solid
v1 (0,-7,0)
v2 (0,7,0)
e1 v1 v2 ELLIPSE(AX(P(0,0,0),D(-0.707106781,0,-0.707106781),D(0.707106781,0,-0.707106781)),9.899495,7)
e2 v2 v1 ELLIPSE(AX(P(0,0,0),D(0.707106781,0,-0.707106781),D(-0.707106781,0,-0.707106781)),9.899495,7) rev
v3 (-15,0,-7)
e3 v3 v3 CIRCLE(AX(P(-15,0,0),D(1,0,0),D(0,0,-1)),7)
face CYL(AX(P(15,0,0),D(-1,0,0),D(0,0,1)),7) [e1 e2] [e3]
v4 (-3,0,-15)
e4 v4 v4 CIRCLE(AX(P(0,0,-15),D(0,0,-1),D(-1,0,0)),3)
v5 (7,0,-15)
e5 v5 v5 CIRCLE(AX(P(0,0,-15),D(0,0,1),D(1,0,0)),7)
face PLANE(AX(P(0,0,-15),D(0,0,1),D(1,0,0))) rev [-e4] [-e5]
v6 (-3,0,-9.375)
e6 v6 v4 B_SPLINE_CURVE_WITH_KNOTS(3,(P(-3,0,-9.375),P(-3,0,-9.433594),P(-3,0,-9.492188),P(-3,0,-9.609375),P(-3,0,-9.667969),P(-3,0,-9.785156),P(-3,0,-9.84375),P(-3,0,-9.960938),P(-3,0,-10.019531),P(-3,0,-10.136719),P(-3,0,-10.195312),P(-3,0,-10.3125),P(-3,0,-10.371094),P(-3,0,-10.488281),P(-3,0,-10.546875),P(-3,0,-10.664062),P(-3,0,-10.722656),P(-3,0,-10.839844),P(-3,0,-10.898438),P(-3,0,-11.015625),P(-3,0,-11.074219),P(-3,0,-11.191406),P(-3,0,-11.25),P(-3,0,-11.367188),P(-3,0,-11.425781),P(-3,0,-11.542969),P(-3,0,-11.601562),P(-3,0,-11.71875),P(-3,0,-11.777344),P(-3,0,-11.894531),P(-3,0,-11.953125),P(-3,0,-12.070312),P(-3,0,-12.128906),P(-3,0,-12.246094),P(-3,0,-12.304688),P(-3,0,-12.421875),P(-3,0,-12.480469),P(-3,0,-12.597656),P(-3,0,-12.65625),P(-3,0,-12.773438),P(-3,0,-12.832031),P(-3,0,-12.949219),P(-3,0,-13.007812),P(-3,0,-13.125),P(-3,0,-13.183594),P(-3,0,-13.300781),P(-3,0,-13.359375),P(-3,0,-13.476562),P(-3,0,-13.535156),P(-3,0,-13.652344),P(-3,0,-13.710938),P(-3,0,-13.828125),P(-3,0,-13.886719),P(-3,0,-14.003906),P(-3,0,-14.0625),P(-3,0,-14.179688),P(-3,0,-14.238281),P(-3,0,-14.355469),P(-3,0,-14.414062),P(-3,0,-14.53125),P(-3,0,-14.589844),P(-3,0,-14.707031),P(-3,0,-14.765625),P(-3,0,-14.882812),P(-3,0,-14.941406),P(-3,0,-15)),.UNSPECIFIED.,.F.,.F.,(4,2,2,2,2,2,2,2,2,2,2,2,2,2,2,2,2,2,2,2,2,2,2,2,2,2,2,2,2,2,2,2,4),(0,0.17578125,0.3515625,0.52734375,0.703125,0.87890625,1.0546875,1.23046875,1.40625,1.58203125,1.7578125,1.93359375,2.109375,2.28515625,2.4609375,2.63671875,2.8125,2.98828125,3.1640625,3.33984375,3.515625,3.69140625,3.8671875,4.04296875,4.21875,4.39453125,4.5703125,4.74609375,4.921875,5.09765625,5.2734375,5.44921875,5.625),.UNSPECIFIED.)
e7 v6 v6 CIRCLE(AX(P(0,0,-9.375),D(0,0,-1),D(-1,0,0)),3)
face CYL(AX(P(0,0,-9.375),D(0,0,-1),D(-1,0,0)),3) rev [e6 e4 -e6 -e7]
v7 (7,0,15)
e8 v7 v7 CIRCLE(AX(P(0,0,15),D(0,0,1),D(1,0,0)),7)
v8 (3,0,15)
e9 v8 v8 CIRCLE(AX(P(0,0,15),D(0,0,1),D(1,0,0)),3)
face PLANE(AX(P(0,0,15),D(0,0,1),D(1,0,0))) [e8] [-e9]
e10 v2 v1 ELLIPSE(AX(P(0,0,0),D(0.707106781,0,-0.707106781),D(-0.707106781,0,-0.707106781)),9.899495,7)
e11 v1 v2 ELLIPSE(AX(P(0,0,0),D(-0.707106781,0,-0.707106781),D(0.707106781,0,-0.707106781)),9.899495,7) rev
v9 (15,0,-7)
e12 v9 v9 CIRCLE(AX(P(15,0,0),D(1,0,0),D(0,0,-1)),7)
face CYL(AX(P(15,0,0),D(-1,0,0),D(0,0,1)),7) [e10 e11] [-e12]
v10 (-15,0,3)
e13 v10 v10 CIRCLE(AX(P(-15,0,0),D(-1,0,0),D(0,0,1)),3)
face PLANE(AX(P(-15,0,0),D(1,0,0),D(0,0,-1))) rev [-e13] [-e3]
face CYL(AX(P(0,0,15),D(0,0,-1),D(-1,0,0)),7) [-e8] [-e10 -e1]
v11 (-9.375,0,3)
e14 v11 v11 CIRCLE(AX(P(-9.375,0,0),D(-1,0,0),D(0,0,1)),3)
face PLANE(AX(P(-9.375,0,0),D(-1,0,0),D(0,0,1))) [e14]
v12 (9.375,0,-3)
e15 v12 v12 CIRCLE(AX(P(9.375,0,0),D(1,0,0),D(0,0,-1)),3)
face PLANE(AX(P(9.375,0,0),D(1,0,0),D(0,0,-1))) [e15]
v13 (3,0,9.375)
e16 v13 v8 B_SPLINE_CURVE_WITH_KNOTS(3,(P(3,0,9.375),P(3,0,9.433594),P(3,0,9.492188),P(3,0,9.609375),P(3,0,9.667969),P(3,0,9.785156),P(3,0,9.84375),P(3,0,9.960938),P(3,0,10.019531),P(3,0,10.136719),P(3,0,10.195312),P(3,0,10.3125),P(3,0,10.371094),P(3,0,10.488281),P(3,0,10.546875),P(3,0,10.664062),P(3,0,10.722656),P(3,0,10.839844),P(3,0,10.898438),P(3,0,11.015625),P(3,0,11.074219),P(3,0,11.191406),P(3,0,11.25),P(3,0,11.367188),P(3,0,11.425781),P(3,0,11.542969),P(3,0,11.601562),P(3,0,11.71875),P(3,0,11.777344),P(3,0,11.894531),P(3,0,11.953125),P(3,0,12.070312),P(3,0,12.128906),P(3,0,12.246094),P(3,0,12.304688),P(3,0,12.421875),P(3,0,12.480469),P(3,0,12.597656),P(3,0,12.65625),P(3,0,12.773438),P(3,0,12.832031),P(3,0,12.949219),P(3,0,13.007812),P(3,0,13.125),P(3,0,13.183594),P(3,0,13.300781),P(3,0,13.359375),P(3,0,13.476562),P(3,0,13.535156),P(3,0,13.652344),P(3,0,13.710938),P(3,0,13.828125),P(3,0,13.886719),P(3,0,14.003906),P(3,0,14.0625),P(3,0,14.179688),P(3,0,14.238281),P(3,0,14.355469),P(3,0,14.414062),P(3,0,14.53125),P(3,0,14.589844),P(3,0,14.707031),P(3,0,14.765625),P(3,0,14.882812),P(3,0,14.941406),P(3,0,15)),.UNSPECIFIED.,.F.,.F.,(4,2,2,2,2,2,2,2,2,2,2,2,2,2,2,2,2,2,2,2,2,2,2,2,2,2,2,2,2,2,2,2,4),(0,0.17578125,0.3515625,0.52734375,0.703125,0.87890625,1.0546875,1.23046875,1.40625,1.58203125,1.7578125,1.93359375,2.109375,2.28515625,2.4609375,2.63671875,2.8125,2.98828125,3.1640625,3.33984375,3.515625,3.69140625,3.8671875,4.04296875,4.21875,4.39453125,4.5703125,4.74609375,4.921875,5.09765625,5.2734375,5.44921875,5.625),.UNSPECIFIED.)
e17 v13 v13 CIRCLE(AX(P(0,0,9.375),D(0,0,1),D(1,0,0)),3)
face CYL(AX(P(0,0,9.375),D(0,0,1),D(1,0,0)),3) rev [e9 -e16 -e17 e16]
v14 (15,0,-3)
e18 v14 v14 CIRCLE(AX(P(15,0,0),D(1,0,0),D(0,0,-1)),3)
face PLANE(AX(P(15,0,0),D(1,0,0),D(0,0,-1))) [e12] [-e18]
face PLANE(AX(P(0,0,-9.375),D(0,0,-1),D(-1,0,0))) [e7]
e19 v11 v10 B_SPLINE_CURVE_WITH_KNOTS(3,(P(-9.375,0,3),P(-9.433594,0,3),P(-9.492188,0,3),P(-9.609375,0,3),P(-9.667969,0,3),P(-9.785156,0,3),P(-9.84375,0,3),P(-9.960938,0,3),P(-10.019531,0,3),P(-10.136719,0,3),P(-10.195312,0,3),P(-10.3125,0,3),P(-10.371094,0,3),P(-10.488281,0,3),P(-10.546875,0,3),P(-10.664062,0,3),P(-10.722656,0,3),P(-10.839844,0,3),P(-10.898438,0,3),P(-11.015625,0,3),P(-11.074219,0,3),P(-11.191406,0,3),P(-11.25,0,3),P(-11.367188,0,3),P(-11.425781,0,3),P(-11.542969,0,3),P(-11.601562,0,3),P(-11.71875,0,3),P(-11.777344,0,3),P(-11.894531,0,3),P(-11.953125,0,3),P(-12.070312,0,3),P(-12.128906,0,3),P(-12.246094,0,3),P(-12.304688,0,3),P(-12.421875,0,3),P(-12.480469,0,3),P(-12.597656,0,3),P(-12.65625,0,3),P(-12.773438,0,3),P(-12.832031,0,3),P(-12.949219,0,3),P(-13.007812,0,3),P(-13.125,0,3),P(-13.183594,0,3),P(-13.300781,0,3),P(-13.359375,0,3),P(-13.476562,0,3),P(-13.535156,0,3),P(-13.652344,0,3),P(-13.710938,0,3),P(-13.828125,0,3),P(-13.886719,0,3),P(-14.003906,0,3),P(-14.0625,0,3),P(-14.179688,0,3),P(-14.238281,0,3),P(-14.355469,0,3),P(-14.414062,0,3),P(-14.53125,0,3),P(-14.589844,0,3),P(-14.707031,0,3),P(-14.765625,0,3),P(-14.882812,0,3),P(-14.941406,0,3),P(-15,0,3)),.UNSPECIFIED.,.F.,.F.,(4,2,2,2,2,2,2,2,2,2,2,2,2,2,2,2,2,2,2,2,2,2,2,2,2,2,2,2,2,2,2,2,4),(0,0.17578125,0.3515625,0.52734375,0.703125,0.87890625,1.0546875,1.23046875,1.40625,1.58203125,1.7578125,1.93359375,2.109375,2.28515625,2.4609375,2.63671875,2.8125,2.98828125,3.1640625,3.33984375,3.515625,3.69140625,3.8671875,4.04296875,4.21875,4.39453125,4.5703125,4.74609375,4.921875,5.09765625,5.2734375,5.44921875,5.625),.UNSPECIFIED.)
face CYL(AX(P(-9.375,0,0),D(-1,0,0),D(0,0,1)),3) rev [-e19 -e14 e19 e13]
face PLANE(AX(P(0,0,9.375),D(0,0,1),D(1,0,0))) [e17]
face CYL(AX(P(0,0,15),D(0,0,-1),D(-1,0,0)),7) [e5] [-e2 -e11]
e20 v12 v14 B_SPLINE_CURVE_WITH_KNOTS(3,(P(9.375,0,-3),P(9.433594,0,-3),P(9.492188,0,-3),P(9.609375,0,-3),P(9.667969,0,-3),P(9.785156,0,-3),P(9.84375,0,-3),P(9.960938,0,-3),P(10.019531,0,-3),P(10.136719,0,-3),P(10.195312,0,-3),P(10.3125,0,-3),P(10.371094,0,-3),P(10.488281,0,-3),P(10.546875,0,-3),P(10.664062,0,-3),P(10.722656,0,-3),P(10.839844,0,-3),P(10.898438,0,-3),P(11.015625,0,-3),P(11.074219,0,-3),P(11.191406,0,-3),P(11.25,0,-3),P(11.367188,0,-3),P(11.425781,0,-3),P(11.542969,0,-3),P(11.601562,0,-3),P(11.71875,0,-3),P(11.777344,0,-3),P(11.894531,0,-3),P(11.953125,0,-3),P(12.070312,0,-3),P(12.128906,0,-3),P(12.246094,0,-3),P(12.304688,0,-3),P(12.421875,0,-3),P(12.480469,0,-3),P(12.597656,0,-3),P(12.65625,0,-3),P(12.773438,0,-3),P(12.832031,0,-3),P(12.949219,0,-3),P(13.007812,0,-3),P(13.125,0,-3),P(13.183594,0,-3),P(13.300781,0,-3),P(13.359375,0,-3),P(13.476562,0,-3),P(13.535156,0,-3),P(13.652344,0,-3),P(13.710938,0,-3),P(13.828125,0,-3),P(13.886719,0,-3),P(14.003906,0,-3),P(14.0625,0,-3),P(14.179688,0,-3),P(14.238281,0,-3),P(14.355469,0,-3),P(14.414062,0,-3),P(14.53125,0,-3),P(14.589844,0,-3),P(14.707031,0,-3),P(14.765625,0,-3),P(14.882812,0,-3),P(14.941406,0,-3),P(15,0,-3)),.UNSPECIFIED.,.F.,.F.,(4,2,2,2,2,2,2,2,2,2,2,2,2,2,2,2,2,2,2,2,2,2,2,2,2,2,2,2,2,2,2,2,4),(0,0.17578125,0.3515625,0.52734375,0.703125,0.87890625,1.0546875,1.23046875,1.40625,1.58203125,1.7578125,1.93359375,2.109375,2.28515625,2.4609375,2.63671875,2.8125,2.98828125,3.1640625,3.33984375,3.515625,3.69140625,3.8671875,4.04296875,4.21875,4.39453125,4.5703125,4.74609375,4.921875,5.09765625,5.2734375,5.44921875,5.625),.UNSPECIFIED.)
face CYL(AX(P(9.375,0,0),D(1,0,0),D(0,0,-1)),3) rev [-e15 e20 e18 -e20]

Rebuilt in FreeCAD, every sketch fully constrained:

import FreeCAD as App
import Part
import Sketcher

doc = App.newDocument("Part")
body = doc.addObject("PartDesign::Body", "Body")

# Sketch on XY plane
sketch1 = doc.addObject("Sketcher::SketchObject", "Sketch")
body.addObject(sketch1)
sketch1.AttachmentSupport = (doc.XY_Plane, [""])
sketch1.MapMode = "FlatFace"
sketch1.addGeometry(Part.Circle(App.Vector(0, 0, 0), App.Vector(0, 0, 1), 7), False)
sketch1.addConstraint([
    Sketcher.Constraint("Coincident", 0, 3, -1, 1),
    Sketcher.Constraint("Diameter", 0, 14.0),
])
pad1 = doc.addObject("PartDesign::Pad", "Pad")
body.addObject(pad1)
pad1.Profile = sketch1
pad1.Length = 30
pad1.Midplane = True

# Sketch on YZ plane
sketch2 = doc.addObject("Sketcher::SketchObject", "Sketch001")
body.addObject(sketch2)
sketch2.AttachmentSupport = (doc.YZ_Plane, [""])
sketch2.MapMode = "FlatFace"
sketch2.addGeometry(Part.Circle(App.Vector(0, 0, 0), App.Vector(0, 0, 1), 7), False)
sketch2.addConstraint([
    Sketcher.Constraint("Coincident", 0, 3, -1, 1),
    Sketcher.Constraint("Diameter", 0, 14.0),
])
pad2 = doc.addObject("PartDesign::Pad", "Pad001")
body.addObject(pad2)
pad2.Profile = sketch2
pad2.Length = 30
pad2.Midplane = True

# Sketch on XY plane
sketch3 = doc.addObject("Sketcher::SketchObject", "Sketch002")
body.addObject(sketch3)
sketch3.AttachmentSupport = (doc.XY_Plane, [""])
sketch3.MapMode = "FlatFace"
sketch3.AttachmentOffset = App.Placement(App.Vector(0, 0, 15), App.Rotation())
sketch3.addGeometry(Part.Circle(App.Vector(0, 0, 0), App.Vector(0, 0, 1), 3), False)
sketch3.addConstraint([
    Sketcher.Constraint("Coincident", 0, 3, -1, 1),
    Sketcher.Constraint("Diameter", 0, 6.0),
])
pocket1 = doc.addObject("PartDesign::Pocket", "Pocket")
body.addObject(pocket1)
pocket1.Profile = sketch3
pocket1.Length = 5.625
doc.recompute()

polarpattern = doc.addObject("PartDesign::PolarPattern", "PolarPattern")
body.addObject(polarpattern)
polarpattern.Originals = [pocket1]
polarpattern.Axis = (doc.Y_Axis, [""])
polarpattern.Angle = 360
polarpattern.Occurrences = 4
body.Tip = polarpattern

doc.recompute()
